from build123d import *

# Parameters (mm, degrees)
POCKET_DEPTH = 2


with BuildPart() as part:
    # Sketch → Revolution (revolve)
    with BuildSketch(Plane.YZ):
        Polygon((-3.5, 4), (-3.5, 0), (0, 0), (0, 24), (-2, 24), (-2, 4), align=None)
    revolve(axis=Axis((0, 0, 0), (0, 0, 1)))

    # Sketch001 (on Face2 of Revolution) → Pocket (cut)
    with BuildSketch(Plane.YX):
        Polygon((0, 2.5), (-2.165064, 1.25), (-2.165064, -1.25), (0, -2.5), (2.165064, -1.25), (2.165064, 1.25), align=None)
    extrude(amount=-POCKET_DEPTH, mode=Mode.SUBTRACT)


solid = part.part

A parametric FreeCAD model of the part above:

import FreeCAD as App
import Part
import Sketcher
Q = App.Units.Quantity


def add_polygon(sketch, points):
    """Adds a closed chain of lines whose ends are joined by coincident constraints."""
    first, n = sketch.GeometryCount, len(points)
    for a, b in zip(points, points[1:] + points[:1]):
        sketch.addGeometry(Part.LineSegment(App.Vector(*a, 0), App.Vector(*b, 0)), False)
    for i in range(n):
        sketch.addConstraint(Sketcher.Constraint("Coincident", first + i, 2, first + (i + 1) % n, 1))

doc = App.newDocument("Part")
body = doc.addObject("PartDesign::Body", "Body")

# Sketch on YZ plane
sketch1 = body.newObject("Sketcher::SketchObject", "Sketch")
sketch1.AttachmentSupport = (doc.getObject("YZ_Plane"), [""])
sketch1.MapMode = "FlatFace"
add_polygon(sketch1, [(-3.5, 4), (-3.5, 0), (0, 0), (0, 24), (-2, 24), (-2, 4)])  # lines 0-5
sketch1.addConstraint(Sketcher.Constraint("Vertical", 0))
sketch1.addConstraint(Sketcher.Constraint("Horizontal", 1))
sketch1.addConstraint(Sketcher.Constraint("Vertical", 2))
sketch1.addConstraint(Sketcher.Constraint("Horizontal", 3))
sketch1.addConstraint(Sketcher.Constraint("Vertical", 4))
sketch1.addConstraint(Sketcher.Constraint("Horizontal", 5))
sketch1.addConstraint(Sketcher.Constraint("Coincident", 1, 2, -1, 1))
sketch1.addConstraint(Sketcher.Constraint("DistanceX", 3, 2, 3, 1, 2.0))
sketch1.addConstraint(Sketcher.Constraint("DistanceY", 0, 2, 0, 1, 4.0))
sketch1.addConstraint(Sketcher.Constraint("DistanceY", 2, 1, 2, 2, 24.0))
sketch1.addConstraint(Sketcher.Constraint("DistanceX", 1, 1, 1, 2, 3.5))
revolution = body.newObject("PartDesign::Revolution", "Revolution")
revolution.Profile = sketch1
revolution.ReferenceAxis = (sketch1, ["V_Axis"])
revolution.Angle = 360

# Sketch on XY plane
sketch2 = body.newObject("Sketcher::SketchObject", "Sketch001")
sketch2.AttachmentSupport = (doc.getObject("XY_Plane"), [""])
sketch2.MapMode = "FlatFace"
add_polygon(sketch2, [(2.5, 0), (1.2, -2.2), (-1.2, -2.2), (-2.5, 0), (-1.2, 2.2), (1.2, 2.2)])  # lines 0-5
sketch2.addConstraint(Sketcher.Constraint("Horizontal", 1))
sketch2.addConstraint(Sketcher.Constraint("Horizontal", 4))
sketch2.addConstraint(Sketcher.Constraint("Symmetric", 0, 2, 3, 2, -1, 1))
sketch2.addConstraint(Sketcher.Constraint("Symmetric", 2, 2, 5, 2, -1, 1))
sketch2.addConstraint(Sketcher.Constraint("PointOnObject", 2, 2, -1))
sketch2.addConstraint(Sketcher.Constraint("Parallel", 2, 5))
sketch2.addConstraint(Sketcher.Constraint("Vertical", 1, 2, 3, 2))
sketch2.addConstraint(Sketcher.Constraint("Angle", 0, Q("-119.999994 deg")))
sketch2.addConstraint(Sketcher.Constraint("DistanceX", 1, 2, 1, 1, 2.5))
sketch2.addConstraint(Sketcher.Constraint("DistanceX", 2, 2, 5, 2, 5.0))
pocket1 = body.newObject("PartDesign::Pocket", "Pocket")
pocket1.Profile = sketch2
pocket1.Length = 2
pocket1.Reversed = True

doc.recompute()
